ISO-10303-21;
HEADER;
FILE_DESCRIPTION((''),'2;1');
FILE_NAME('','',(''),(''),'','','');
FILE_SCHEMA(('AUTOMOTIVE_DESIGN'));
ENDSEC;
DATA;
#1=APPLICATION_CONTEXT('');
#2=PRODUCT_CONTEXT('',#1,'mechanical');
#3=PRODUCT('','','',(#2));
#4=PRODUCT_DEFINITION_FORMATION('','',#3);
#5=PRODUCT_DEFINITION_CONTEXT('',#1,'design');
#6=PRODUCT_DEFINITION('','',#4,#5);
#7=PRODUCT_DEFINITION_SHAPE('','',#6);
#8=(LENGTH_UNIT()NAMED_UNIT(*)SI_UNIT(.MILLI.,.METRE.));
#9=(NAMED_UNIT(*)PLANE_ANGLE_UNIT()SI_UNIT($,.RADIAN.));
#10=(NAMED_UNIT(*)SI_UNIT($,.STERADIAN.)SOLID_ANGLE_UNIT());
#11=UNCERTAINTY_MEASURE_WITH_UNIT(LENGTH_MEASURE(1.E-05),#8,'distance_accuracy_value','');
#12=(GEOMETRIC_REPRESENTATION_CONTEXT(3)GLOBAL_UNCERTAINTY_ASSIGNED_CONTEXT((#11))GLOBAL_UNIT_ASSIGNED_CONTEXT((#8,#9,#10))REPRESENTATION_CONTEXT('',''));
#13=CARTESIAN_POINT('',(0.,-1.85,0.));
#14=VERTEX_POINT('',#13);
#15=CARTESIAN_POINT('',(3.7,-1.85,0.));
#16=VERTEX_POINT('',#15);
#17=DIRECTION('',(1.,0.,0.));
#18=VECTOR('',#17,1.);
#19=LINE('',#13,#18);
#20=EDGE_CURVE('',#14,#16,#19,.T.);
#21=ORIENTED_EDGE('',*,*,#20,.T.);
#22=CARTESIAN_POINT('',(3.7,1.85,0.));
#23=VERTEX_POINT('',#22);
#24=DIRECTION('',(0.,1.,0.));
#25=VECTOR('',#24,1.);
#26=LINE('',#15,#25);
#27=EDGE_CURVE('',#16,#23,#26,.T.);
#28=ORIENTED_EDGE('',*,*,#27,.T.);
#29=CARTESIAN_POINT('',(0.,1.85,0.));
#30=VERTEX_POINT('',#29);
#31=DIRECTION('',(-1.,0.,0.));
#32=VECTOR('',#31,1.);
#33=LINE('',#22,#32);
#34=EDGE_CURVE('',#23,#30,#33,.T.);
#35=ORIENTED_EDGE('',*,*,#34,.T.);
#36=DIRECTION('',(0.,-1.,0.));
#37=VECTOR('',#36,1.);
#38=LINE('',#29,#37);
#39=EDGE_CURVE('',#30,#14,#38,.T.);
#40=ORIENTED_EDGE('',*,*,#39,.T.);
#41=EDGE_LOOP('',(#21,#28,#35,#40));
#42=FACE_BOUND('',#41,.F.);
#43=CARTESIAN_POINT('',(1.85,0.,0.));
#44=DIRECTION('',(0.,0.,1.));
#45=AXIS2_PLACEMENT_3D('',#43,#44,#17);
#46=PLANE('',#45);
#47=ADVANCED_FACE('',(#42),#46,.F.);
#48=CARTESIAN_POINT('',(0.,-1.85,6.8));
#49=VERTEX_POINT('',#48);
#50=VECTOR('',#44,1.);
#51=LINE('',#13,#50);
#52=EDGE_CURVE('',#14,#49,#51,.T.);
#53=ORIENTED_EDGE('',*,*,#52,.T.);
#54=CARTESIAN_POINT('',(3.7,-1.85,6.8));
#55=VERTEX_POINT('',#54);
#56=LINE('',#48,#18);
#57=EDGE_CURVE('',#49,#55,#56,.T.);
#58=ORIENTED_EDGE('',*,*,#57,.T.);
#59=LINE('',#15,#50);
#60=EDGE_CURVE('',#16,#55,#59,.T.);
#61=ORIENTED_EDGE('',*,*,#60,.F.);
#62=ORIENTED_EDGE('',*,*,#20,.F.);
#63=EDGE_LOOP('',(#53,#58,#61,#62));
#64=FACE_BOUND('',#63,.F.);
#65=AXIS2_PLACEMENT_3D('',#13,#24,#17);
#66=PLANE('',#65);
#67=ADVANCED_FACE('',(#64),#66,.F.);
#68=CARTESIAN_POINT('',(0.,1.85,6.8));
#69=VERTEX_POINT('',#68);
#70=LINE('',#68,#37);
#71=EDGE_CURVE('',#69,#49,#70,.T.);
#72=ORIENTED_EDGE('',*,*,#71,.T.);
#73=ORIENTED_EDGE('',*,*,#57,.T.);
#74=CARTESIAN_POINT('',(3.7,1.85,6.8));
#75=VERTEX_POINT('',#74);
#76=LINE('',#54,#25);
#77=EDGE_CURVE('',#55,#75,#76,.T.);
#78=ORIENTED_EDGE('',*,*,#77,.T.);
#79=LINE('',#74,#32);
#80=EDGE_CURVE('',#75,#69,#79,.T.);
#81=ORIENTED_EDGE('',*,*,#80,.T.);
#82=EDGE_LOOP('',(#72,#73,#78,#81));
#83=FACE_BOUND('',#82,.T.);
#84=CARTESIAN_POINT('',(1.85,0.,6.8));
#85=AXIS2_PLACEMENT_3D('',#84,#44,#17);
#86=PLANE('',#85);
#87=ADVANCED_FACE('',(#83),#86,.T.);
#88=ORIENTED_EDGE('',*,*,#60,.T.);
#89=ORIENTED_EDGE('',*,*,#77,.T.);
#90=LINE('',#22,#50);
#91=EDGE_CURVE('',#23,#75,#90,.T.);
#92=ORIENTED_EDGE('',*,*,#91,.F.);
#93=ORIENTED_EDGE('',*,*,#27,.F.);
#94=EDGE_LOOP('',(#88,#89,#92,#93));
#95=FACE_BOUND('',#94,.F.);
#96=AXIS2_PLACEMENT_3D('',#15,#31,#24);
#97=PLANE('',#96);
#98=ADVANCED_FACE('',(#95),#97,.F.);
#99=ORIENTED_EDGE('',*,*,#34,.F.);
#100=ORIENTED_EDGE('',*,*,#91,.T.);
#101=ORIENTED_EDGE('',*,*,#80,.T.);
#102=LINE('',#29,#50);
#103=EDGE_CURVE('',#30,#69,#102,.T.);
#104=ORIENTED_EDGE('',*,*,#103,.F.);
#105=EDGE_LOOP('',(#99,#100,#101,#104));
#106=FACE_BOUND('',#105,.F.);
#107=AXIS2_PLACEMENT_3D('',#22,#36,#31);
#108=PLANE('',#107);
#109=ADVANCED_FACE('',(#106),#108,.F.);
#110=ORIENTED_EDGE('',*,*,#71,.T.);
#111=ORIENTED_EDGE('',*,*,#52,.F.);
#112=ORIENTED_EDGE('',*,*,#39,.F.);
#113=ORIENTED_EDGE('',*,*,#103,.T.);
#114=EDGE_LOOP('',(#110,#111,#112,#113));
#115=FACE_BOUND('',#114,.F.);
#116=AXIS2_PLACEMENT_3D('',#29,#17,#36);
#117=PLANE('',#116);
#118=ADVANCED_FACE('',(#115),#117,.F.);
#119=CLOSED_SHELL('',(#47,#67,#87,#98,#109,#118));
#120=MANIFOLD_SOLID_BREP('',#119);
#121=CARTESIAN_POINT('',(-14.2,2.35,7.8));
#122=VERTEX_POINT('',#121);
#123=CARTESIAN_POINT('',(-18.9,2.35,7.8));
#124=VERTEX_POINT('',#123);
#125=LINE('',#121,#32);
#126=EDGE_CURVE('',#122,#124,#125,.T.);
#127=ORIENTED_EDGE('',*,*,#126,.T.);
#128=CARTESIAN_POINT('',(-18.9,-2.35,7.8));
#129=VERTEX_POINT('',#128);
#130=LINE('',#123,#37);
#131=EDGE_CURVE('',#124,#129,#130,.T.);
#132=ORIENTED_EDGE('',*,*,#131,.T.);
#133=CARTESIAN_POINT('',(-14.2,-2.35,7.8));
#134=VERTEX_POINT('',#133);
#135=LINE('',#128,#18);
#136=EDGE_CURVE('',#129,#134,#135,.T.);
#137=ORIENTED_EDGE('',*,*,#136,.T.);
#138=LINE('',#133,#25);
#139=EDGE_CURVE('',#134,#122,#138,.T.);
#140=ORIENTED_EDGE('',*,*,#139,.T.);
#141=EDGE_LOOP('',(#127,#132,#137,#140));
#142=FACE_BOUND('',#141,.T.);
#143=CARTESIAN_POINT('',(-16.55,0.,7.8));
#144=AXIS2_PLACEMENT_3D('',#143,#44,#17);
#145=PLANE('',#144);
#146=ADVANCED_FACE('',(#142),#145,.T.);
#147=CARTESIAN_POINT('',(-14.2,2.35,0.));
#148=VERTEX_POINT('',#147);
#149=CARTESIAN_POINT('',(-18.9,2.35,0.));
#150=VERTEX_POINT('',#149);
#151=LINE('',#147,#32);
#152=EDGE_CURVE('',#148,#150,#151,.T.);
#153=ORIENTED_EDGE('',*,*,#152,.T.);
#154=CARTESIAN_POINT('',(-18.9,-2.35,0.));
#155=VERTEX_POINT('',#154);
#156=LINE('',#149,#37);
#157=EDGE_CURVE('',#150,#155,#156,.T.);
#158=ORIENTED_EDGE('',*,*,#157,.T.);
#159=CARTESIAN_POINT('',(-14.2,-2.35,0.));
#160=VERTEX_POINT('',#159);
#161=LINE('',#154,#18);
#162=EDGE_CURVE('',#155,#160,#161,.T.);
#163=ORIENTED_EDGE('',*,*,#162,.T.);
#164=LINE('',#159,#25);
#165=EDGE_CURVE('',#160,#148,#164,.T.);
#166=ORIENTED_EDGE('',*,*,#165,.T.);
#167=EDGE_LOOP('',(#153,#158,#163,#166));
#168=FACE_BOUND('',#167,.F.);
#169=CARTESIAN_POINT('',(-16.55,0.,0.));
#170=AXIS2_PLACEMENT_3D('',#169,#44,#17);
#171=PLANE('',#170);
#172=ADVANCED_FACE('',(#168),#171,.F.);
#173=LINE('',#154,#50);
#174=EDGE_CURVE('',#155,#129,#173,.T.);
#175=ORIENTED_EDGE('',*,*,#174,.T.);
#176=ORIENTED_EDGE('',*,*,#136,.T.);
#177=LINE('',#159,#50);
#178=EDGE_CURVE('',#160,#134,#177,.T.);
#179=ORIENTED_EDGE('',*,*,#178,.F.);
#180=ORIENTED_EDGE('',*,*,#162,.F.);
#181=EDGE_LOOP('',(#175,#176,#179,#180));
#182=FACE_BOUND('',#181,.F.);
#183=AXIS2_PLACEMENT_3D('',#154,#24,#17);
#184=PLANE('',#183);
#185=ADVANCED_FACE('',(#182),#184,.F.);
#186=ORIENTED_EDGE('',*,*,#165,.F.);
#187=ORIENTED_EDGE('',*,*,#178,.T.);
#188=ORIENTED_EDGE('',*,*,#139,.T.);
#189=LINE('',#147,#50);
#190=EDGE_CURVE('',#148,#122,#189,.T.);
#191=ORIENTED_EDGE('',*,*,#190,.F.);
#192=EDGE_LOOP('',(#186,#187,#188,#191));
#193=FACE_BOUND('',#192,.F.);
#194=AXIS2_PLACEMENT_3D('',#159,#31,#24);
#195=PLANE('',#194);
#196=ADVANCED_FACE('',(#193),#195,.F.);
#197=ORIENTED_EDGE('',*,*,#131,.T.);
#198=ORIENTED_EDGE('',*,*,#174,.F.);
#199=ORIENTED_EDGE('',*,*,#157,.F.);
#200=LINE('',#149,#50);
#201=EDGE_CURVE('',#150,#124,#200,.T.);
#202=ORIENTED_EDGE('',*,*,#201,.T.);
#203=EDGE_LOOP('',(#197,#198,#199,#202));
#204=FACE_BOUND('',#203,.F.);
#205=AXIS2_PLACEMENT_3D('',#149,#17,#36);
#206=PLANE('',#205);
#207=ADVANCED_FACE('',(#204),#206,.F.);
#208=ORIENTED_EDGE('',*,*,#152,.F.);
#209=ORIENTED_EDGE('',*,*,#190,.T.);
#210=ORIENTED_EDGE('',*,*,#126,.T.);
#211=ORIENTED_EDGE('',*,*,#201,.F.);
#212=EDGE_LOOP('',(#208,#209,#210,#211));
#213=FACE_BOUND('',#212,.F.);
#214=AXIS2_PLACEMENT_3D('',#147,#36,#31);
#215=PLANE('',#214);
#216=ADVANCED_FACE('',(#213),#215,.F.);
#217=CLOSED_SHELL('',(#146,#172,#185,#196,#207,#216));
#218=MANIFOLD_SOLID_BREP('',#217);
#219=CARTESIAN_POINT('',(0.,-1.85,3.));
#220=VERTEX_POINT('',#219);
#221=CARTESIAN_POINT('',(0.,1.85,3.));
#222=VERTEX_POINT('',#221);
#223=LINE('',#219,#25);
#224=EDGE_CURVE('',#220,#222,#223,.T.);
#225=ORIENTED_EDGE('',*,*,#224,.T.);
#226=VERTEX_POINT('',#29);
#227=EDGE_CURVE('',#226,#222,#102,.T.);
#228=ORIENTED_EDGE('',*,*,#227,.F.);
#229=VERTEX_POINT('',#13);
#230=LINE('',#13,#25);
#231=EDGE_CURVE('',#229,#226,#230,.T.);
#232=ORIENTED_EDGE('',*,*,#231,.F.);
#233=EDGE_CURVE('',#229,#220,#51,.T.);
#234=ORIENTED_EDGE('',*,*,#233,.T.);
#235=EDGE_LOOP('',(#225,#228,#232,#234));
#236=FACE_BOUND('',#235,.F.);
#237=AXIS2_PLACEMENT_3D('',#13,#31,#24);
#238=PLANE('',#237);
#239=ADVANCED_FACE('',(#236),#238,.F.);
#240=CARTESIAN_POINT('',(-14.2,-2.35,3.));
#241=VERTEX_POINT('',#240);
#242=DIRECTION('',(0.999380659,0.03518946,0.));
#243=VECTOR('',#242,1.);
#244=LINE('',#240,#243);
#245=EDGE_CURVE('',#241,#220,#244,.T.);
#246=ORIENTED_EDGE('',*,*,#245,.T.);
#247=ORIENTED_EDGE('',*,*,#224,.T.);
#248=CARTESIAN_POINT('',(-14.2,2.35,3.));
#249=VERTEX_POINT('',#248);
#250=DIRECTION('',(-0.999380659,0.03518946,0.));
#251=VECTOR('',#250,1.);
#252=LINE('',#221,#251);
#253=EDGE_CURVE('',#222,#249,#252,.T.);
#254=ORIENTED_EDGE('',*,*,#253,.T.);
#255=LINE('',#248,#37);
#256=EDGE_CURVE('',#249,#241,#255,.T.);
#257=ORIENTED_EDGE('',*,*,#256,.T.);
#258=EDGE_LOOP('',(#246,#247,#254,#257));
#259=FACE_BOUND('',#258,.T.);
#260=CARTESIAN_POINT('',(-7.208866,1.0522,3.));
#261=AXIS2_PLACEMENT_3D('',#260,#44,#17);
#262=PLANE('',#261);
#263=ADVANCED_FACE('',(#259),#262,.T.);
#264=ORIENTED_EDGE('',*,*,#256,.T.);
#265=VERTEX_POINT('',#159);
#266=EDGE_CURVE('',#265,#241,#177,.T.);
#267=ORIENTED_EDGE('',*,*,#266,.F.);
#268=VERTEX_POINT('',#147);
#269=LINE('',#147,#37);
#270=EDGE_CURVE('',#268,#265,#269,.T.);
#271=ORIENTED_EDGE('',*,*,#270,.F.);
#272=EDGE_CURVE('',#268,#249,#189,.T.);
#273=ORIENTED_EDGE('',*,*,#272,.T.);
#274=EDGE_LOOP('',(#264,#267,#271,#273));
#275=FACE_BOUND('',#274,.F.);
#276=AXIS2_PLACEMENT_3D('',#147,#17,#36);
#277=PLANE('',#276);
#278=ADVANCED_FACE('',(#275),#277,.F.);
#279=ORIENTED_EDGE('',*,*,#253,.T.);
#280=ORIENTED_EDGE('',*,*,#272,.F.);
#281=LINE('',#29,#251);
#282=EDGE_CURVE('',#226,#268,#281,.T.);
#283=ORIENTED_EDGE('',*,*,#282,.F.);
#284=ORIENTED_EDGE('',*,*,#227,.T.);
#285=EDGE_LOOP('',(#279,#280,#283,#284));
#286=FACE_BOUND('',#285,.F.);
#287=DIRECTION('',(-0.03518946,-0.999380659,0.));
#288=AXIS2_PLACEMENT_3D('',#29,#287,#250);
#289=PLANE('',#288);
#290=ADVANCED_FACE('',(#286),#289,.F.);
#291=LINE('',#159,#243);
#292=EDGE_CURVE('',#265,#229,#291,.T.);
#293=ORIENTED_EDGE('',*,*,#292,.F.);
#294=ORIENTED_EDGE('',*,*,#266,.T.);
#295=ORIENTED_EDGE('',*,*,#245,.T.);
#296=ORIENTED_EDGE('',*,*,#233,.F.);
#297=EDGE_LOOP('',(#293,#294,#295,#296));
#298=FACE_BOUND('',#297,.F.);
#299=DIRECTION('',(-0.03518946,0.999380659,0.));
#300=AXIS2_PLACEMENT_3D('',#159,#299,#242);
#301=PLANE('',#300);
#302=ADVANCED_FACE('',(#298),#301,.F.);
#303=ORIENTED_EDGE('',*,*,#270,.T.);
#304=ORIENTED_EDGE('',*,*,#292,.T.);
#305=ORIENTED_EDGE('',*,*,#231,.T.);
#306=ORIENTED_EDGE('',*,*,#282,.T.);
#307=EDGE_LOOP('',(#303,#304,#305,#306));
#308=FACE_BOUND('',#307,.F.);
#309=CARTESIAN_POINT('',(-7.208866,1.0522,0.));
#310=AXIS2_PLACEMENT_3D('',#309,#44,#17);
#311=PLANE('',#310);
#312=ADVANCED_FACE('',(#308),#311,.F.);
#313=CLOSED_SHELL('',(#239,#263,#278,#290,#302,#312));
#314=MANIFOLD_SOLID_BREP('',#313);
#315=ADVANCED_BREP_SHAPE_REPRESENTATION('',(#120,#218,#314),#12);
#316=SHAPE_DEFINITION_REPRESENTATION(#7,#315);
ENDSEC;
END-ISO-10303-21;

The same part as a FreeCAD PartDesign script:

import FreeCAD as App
import Part
import Sketcher
Q = App.Units.Quantity


def add_polygon(sketch, points):
    """Adds a closed chain of lines whose ends are joined by coincident constraints."""
    first, n = sketch.GeometryCount, len(points)
    for a, b in zip(points, points[1:] + points[:1]):
        sketch.addGeometry(Part.LineSegment(App.Vector(*a, 0), App.Vector(*b, 0)), False)
    for i in range(n):
        sketch.addConstraint(Sketcher.Constraint("Coincident", first + i, 2, first + (i + 1) % n, 1))

doc = App.newDocument("Part")
body = doc.addObject("PartDesign::Body", "Body")

# Sketch on XY plane
sketch1 = doc.addObject("Sketcher::SketchObject", "Sketch")
body.addObject(sketch1)
sketch1.AttachmentSupport = (doc.XY_Plane, [""])
sketch1.MapMode = "FlatFace"
add_polygon(sketch1, [(-14.2, 2.4), (-18.9, 2.4), (-18.9, -2.4), (-14.2, -2.4)])  # lines 0-3
sketch1.addConstraint(Sketcher.Constraint("Horizontal", 0))
sketch1.addConstraint(Sketcher.Constraint("Vertical", 1))
sketch1.addConstraint(Sketcher.Constraint("Horizontal", 2))
sketch1.addConstraint(Sketcher.Constraint("Vertical", 3))
sketch1.addConstraint(Sketcher.Constraint("Equal", 2, 1))
sketch1.addConstraint(Sketcher.Constraint("DistanceX", 0, 2, 0, 1, Q("4.7 mm")))
sketch1.addConstraint(Sketcher.Constraint("DistanceX", 0, 2, -1, 1, Q("18.9 mm")))
sketch1.addConstraint(Sketcher.Constraint("DistanceY", -1, 1, 0, 2, Q("2.35 mm")))
pad1 = doc.addObject("PartDesign::Pad", "Pad")
body.addObject(pad1)
pad1.Profile = sketch1
pad1.Length = 7.8
body2 = doc.addObject("PartDesign::Body", "Body001")

# Sketch on XY plane
sketch2 = doc.addObject("Sketcher::SketchObject", "Sketch001")
body2.addObject(sketch2)
sketch2.AttachmentSupport = (doc.getObject("XY_Plane001"), [""])
sketch2.MapMode = "FlatFace"
add_polygon(sketch2, [(3.7, 1.9), (0, 1.9), (0, -1.9), (3.7, -1.9)])  # lines 0-3
sketch2.addConstraint(Sketcher.Constraint("Horizontal", 0))
sketch2.addConstraint(Sketcher.Constraint("Vertical", 1))
sketch2.addConstraint(Sketcher.Constraint("Horizontal", 2))
sketch2.addConstraint(Sketcher.Constraint("Vertical", 3))
sketch2.addConstraint(Sketcher.Constraint("Symmetric", 0, 2, 1, 2, -1, 1))
sketch2.addConstraint(Sketcher.Constraint("Equal", 2, 1))
sketch2.addConstraint(Sketcher.Constraint("DistanceX", 0, 2, 0, 1, Q("3.7 mm")))
pad2 = doc.addObject("PartDesign::Pad", "Pad001")
body2.addObject(pad2)
pad2.Profile = sketch2
pad2.Length = 6.8
body3 = doc.addObject("PartDesign::Body", "Body002")

# Sketch on XY plane
sketch3 = doc.addObject("Sketcher::SketchObject", "Sketch002")
body3.addObject(sketch3)
sketch3.AttachmentSupport = (doc.getObject("XY_Plane002"), [""])
sketch3.MapMode = "FlatFace"
add_polygon(sketch3, [(0, 1.9), (-14.2, 2.4), (-14.2, -2.4), (0, -1.9)])  # lines 0-3
sketch3.addConstraint(Sketcher.Constraint("Vertical", 1))
sketch3.addConstraint(Sketcher.Constraint("Vertical", 3))
sketch3.addConstraint(Sketcher.Constraint("Symmetric", 2, 2, 3, 2, -1, 1))
sketch3.addConstraint(Sketcher.Constraint("Equal", 0, 2))
sketch3.addConstraint(Sketcher.Constraint("DistanceY", 1, 2, 1, 1, Q("4.7 mm")))
sketch3.addConstraint(Sketcher.Constraint("DistanceY", 3, 1, 3, 2, Q("3.7 mm")))
sketch3.addConstraint(Sketcher.Constraint("DistanceX", 0, 2, -1, 1, Q("14.2 mm")))
pad3 = doc.addObject("PartDesign::Pad", "Pad002")
body3.addObject(pad3)
pad3.Profile = sketch3
pad3.Length = 3

doc.recompute()
